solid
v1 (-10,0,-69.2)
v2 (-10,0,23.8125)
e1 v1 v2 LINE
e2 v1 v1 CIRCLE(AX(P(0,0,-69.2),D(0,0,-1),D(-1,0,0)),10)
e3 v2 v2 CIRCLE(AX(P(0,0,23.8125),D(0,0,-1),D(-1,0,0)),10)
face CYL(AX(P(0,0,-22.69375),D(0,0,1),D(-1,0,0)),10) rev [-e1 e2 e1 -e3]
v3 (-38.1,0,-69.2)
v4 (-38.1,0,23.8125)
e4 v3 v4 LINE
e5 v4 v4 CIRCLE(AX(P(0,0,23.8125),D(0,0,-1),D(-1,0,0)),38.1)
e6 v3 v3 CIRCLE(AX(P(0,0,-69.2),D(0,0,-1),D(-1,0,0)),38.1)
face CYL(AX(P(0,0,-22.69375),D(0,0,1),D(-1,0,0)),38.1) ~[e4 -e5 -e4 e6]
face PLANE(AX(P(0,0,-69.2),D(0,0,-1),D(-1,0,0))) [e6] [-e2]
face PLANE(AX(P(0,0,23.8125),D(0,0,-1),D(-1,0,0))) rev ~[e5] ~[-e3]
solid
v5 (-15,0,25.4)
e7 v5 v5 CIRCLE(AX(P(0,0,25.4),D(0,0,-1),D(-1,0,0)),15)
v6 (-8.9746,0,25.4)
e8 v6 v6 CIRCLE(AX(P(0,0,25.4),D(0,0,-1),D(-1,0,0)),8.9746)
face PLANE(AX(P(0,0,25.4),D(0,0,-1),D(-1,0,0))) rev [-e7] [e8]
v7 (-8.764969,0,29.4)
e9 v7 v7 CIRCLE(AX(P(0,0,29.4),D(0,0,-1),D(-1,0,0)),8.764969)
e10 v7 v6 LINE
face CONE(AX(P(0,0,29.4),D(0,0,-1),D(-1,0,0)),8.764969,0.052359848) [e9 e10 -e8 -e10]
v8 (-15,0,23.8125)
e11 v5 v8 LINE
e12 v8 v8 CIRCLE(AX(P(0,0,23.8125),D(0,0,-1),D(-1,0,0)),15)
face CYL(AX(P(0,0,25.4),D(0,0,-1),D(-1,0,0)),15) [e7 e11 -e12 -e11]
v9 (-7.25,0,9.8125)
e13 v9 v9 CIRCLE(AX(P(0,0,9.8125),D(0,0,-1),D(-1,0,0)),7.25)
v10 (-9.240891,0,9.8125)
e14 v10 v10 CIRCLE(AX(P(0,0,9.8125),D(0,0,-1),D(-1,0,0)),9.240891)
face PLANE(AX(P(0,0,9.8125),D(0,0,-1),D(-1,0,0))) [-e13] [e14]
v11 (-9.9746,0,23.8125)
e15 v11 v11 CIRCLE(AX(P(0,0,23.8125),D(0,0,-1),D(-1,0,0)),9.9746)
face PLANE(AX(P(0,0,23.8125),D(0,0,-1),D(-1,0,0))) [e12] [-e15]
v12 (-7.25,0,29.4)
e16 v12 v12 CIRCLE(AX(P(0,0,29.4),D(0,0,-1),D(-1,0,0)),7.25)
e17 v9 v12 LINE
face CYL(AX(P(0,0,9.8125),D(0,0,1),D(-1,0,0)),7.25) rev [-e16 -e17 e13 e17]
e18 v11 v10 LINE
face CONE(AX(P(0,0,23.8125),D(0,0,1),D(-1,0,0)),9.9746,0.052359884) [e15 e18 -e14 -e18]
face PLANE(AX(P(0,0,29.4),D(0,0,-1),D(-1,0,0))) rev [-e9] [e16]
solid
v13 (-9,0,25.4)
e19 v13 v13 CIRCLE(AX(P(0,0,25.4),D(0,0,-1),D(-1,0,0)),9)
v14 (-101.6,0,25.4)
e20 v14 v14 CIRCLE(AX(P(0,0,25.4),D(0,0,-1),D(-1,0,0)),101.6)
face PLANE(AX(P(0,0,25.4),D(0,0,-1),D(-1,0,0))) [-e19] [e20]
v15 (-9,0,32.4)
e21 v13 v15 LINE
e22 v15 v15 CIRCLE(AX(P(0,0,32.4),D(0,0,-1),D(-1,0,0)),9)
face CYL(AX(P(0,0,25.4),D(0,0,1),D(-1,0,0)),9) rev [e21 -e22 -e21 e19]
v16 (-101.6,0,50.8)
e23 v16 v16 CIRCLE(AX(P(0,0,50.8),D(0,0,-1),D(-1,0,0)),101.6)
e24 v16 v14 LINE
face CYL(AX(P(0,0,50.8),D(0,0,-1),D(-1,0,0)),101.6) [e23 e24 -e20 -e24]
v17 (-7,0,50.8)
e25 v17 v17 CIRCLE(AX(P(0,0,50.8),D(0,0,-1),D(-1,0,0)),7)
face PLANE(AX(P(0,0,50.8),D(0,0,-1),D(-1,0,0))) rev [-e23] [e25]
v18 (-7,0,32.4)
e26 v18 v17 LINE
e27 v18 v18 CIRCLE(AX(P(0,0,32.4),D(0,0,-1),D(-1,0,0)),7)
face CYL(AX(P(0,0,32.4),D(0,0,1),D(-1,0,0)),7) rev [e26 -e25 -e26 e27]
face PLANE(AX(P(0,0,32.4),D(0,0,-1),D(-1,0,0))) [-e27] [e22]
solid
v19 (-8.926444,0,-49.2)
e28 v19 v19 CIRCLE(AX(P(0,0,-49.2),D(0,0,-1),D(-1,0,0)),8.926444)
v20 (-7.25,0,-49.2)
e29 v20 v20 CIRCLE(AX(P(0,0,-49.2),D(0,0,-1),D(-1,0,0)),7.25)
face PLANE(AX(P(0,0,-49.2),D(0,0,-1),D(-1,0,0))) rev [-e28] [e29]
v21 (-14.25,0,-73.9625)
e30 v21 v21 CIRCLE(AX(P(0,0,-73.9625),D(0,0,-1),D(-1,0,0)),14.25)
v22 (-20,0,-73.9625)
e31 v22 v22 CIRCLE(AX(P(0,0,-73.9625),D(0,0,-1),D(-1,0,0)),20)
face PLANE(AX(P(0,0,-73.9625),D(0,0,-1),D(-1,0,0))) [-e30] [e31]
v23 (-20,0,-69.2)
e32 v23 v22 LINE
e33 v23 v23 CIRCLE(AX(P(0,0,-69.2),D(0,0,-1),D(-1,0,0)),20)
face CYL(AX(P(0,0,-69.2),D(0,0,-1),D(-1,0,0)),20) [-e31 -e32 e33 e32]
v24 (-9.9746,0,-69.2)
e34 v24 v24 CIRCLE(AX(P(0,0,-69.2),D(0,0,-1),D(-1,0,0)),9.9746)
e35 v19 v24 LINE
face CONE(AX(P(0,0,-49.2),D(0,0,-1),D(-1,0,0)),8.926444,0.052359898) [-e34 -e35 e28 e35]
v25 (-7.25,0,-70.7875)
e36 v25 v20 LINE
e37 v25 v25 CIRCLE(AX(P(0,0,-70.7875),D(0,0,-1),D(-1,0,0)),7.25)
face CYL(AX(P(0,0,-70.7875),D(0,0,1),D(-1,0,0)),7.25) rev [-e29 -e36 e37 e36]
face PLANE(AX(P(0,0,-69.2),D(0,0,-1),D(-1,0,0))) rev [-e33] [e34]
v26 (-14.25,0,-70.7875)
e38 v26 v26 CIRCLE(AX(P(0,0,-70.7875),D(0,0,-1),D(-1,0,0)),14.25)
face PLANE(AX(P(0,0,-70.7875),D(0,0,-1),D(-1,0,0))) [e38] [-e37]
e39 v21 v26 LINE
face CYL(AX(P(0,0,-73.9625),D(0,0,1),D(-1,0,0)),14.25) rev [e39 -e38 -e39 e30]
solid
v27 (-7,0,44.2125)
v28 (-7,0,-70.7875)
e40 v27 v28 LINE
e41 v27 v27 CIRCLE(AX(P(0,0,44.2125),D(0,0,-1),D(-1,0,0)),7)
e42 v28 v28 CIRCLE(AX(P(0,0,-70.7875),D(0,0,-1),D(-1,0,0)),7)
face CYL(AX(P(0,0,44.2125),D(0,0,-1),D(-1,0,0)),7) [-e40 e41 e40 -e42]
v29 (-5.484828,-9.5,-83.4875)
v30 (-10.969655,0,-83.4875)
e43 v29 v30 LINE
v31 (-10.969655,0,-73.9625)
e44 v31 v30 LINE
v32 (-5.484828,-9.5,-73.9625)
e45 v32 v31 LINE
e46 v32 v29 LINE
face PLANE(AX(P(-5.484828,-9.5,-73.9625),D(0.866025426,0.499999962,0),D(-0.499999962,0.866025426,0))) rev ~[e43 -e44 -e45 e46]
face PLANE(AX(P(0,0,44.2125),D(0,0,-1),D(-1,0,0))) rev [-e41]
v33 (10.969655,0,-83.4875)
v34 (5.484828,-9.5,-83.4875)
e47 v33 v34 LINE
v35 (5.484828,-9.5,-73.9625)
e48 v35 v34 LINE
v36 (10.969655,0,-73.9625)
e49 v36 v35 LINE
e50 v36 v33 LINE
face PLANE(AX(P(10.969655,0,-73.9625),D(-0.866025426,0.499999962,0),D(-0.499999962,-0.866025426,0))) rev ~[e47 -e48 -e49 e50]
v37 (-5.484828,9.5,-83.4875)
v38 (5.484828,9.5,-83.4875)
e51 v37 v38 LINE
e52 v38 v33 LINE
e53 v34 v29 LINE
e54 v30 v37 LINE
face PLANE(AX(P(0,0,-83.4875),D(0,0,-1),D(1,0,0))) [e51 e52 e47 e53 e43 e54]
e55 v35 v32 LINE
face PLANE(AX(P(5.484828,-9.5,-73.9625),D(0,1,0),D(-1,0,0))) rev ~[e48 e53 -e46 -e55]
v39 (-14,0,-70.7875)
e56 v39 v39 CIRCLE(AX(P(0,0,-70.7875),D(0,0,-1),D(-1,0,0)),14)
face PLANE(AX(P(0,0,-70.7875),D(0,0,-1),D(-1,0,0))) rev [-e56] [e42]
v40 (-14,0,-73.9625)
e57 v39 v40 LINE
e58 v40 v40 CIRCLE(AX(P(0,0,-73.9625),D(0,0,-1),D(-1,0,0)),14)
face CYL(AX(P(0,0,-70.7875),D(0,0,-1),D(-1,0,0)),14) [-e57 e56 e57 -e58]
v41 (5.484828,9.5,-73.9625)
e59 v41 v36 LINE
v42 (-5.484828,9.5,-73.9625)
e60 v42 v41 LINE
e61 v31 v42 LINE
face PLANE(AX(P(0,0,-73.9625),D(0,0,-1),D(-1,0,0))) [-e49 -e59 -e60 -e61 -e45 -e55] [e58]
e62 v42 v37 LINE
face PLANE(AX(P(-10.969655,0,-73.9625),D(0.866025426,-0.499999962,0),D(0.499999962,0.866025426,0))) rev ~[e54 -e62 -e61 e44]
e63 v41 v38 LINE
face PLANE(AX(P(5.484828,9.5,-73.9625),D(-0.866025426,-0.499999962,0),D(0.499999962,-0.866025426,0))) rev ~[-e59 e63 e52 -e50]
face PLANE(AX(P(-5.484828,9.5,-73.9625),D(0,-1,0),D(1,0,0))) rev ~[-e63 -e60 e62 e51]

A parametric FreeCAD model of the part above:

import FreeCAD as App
import Part
import Sketcher
Q = App.Units.Quantity

doc = App.newDocument("Part")
body = doc.addObject("PartDesign::Body", "Body")

# Sketch on XZ plane
sketch1 = body.newObject("Sketcher::SketchObject", "Sketch")
sketch1.AttachmentSupport = (doc.getObject("XZ_Plane"), [""])
sketch1.MapMode = "FlatFace"
sketch1.addGeometry([
    Part.LineSegment(App.Vector(-7, 50.8, 0), App.Vector(-101.6, 50.8, 0)),  # 0
    Part.LineSegment(App.Vector(-101.6, 50.8, 0), App.Vector(-101.6, 25.4, 0)),  # 1
    Part.LineSegment(App.Vector(-101.6, 25.4, 0), App.Vector(-9, 25.4, 0)),  # 2
    Part.LineSegment(App.Vector(-9, 25.4, 0), App.Vector(-9, 32.4, 0)),  # 3
    Part.LineSegment(App.Vector(-9, 32.4, 0), App.Vector(-7, 32.4, 0)),  # 4
    Part.LineSegment(App.Vector(-7, 32.4, 0), App.Vector(-7, 50.8, 0)),  # 5
], False)
sketch1.addConstraint([
    Sketcher.Constraint("Coincident", 0, 2, 1, 1),
    Sketcher.Constraint("Coincident", 1, 2, 2, 1),
    Sketcher.Constraint("Coincident", 2, 2, 3, 1),
    Sketcher.Constraint("Coincident", 3, 2, 4, 1),
    Sketcher.Constraint("Coincident", 4, 2, 5, 1),
    Sketcher.Constraint("Coincident", 5, 2, 0, 1),
    Sketcher.Constraint("Horizontal", 0),
    Sketcher.Constraint("Vertical", 1),
    Sketcher.Constraint("Horizontal", 2),
    Sketcher.Constraint("Vertical", 3),
    Sketcher.Constraint("Horizontal", 4),
    Sketcher.Constraint("Vertical", 5),
    Sketcher.Constraint("DistanceX", 4, 1, 4, 2, 2.0),
    Sketcher.Constraint("DistanceY", 3, 1, 3, 2, 7.0),
    Sketcher.Constraint("DistanceX", 0, 2, 0, 1, 94.6),
    Sketcher.Constraint("DistanceY", 1, 2, 1, 1, 25.4),
    Sketcher.Constraint("DistanceX", 2, 2, -1, 1, 9.0),
    Sketcher.Constraint("DistanceY", -1, 1, 0, 2, 50.8),
])
revolution = body.newObject("PartDesign::Revolution", "Revolution")
revolution.Profile = sketch1
revolution.ReferenceAxis = (sketch1, ["V_Axis"])
revolution.Angle = 360
body2 = doc.addObject("PartDesign::Body", "Body001")

# Sketch on XZ plane
sketch2 = body2.newObject("Sketcher::SketchObject", "Sketch001")
sketch2.AttachmentSupport = (doc.getObject("XZ_Plane001"), [""])
sketch2.MapMode = "FlatFace"
sketch2.addGeometry([
    Part.LineSegment(App.Vector(-38, 24, 0), App.Vector(-38, -69, 0)),
    Part.LineSegment(App.Vector(-38, -69, 0), App.Vector(-10, -69, 0)),
    Part.LineSegment(App.Vector(-10, -69, 0), App.Vector(-10, 24, 0)),
    Part.LineSegment(App.Vector(-10, 24, 0), App.Vector(-38, 24, 0)),
], False)
sketch2.addConstraint([
    Sketcher.Constraint("Coincident", 0, 2, 1, 1),
    Sketcher.Constraint("Coincident", 1, 2, 2, 1),
    Sketcher.Constraint("Coincident", 2, 2, 3, 1),
    Sketcher.Constraint("Coincident", 3, 2, 0, 1),
    Sketcher.Constraint("Vertical", 0),
    Sketcher.Constraint("Horizontal", 1),
    Sketcher.Constraint("Vertical", 2),
    Sketcher.Constraint("Horizontal", 3),
    Sketcher.Constraint("DistanceX", 1, 1, 1, 2, 28.1),
    Sketcher.Constraint("DistanceX", 1, 2, -1, 1, 10.0),
    Sketcher.Constraint("DistanceY", 0, 2, -1, 1, 69.2),
    Sketcher.Constraint("DistanceY", 0, 2, 0, 1, 93.0125),
])
revolution2 = body2.newObject("PartDesign::Revolution", "Revolution001")
revolution2.Profile = sketch2
revolution2.ReferenceAxis = (sketch2, ["V_Axis"])
revolution2.Angle = 360
body3 = doc.addObject("PartDesign::Body", "Body002")

# Sketch on XZ plane
sketch3 = body3.newObject("Sketcher::SketchObject", "Sketch002")
sketch3.AttachmentSupport = (doc.getObject("XZ_Plane002"), [""])
sketch3.MapMode = "FlatFace"
sketch3.addGeometry([
    Part.LineSegment(App.Vector(0, -74, 0), App.Vector(0, 44.2, 0)),  # 0
    Part.LineSegment(App.Vector(0, 44.2, 0), App.Vector(-7, 44.2, 0)),  # 1
    Part.LineSegment(App.Vector(-7, 44.2, 0), App.Vector(-7, -70.8, 0)),  # 2
    Part.LineSegment(App.Vector(-7, -70.8, 0), App.Vector(-14, -70.8, 0)),  # 3
    Part.LineSegment(App.Vector(-14, -70.8, 0), App.Vector(-14, -74, 0)),  # 4
    Part.LineSegment(App.Vector(-14, -74, 0), App.Vector(0, -74, 0)),  # 5
], False)
sketch3.addConstraint([
    Sketcher.Constraint("Coincident", 0, 2, 1, 1),
    Sketcher.Constraint("Coincident", 1, 2, 2, 1),
    Sketcher.Constraint("Coincident", 2, 2, 3, 1),
    Sketcher.Constraint("Coincident", 3, 2, 4, 1),
    Sketcher.Constraint("Coincident", 4, 2, 5, 1),
    Sketcher.Constraint("Coincident", 5, 2, 0, 1),
    Sketcher.Constraint("Vertical", 0),
    Sketcher.Constraint("Horizontal", 1),
    Sketcher.Constraint("Vertical", 2),
    Sketcher.Constraint("Horizontal", 3),
    Sketcher.Constraint("Vertical", 4),
    Sketcher.Constraint("Horizontal", 5),
    Sketcher.Constraint("PointOnObject", 0, 2, -2),
    Sketcher.Constraint("Equal", 1, 3),
    Sketcher.Constraint("DistanceX", 1, 2, 1, 1, 7.0),
    Sketcher.Constraint("DistanceY", 2, 2, 2, 1, 115.0),
    Sketcher.Constraint("DistanceY", 0, 1, 0, 2, 118.175),
    Sketcher.Constraint("DistanceY", -1, 1, 0, 2, 44.2125),
])
revolution3 = body3.newObject("PartDesign::Revolution", "Revolution002")
revolution3.Profile = sketch3
revolution3.ReferenceAxis = (sketch3, ["V_Axis"])
revolution3.Angle = 360

# Sketch on XY plane
sketch4 = body3.newObject("Sketcher::SketchObject", "Sketch003")
sketch4.AttachmentSupport = (doc.getObject("XY_Plane002"), [""])
sketch4.MapMode = "FlatFace"
sketch4.AttachmentOffset = App.Placement(App.Vector(0, 0, -73.9625), App.Rotation())
sketch4.addGeometry([
    Part.LineSegment(App.Vector(5, -10, 0), App.Vector(-5, -10, 0)),  # 0
    Part.LineSegment(App.Vector(-5, -10, 0), App.Vector(-11, 0, 0)),  # 1
    Part.LineSegment(App.Vector(-11, 0, 0), App.Vector(-5, 10, 0)),  # 2
    Part.LineSegment(App.Vector(-5, 10, 0), App.Vector(5, 10, 0)),  # 3
    Part.LineSegment(App.Vector(5, 10, 0), App.Vector(11, 0, 0)),  # 4
    Part.LineSegment(App.Vector(11, 0, 0), App.Vector(5, -10, 0)),  # 5
], False)
sketch4.addConstraint([
    Sketcher.Constraint("Coincident", 0, 2, 1, 1),
    Sketcher.Constraint("Coincident", 1, 2, 2, 1),
    Sketcher.Constraint("Coincident", 2, 2, 3, 1),
    Sketcher.Constraint("Coincident", 3, 2, 4, 1),
    Sketcher.Constraint("Coincident", 4, 2, 5, 1),
    Sketcher.Constraint("Coincident", 5, 2, 0, 1),
    Sketcher.Constraint("Horizontal", 0),
    Sketcher.Constraint("Horizontal", 3),
    Sketcher.Constraint("Symmetric", 0, 2, 3, 2, -1, 1),
    Sketcher.Constraint("Symmetric", 1, 2, 4, 2, -1, 1),
    Sketcher.Constraint("PointOnObject", 1, 2, -1),
    Sketcher.Constraint("Parallel", 2, 5),
    Sketcher.Constraint("Vertical", 0, 2, 2, 2),
    Sketcher.Constraint("Angle", 1, Q("119.999997 deg")),
    Sketcher.Constraint("DistanceY", 0, 2, 2, 2, 19.0),
    Sketcher.Constraint("DistanceX", 0, 2, 0, 1, 10.969656),
])
pad1 = body3.newObject("PartDesign::Pad", "Pad")
pad1.Profile = sketch4
pad1.Length = 9.525
pad1.Reversed = True
body4 = doc.addObject("PartDesign::Body", "Body003")

# Sketch on XZ plane
sketch5 = body4.newObject("Sketcher::SketchObject", "Sketch004")
sketch5.AttachmentSupport = (doc.getObject("XZ_Plane003"), [""])
sketch5.MapMode = "FlatFace"
sketch5.addGeometry([
    Part.LineSegment(App.Vector(-7.2, 9.8, 0), App.Vector(-7.2, 29.4, 0)),  # 0
    Part.LineSegment(App.Vector(-7.2, 29.4, 0), App.Vector(-8.8, 29.4, 0)),  # 1
    Part.LineSegment(App.Vector(-8.8, 29.4, 0), App.Vector(-9, 25.4, 0)),  # 2
    Part.LineSegment(App.Vector(-9, 25.4, 0), App.Vector(-15, 25.4, 0)),  # 3
    Part.LineSegment(App.Vector(-15, 25.4, 0), App.Vector(-15, 23.8, 0)),  # 4
    Part.LineSegment(App.Vector(-15, 23.8, 0), App.Vector(-10, 23.8, 0)),  # 5
    Part.LineSegment(App.Vector(-10, 23.8, 0), App.Vector(-9.2, 9.8, 0)),  # 6
    Part.LineSegment(App.Vector(-9.2, 9.8, 0), App.Vector(-7.2, 9.8, 0)),  # 7
], False)
sketch5.addConstraint([
    Sketcher.Constraint("Coincident", 0, 2, 1, 1),
    Sketcher.Constraint("Coincident", 1, 2, 2, 1),
    Sketcher.Constraint("Coincident", 2, 2, 3, 1),
    Sketcher.Constraint("Coincident", 3, 2, 4, 1),
    Sketcher.Constraint("Coincident", 4, 2, 5, 1),
    Sketcher.Constraint("Coincident", 5, 2, 6, 1),
    Sketcher.Constraint("Coincident", 6, 2, 7, 1),
    Sketcher.Constraint("Coincident", 7, 2, 0, 1),
    Sketcher.Constraint("Vertical", 0),
    Sketcher.Constraint("Horizontal", 1),
    Sketcher.Constraint("Horizontal", 3),
    Sketcher.Constraint("Vertical", 4),
    Sketcher.Constraint("Horizontal", 5),
    Sketcher.Constraint("Horizontal", 7),
    Sketcher.Constraint("Angle", 2, Q("-92.999998 deg")),
    Sketcher.Constraint("Angle", 6, Q("-87 deg")),
    Sketcher.Constraint("DistanceX", 3, 2, -1, 1, 15.0),
    Sketcher.Constraint("DistanceY", 2, 2, 1, 2, 4.0),
    Sketcher.Constraint("DistanceX", 5, 2, 2, 2, 1.0),
    Sketcher.Constraint("DistanceY", 6, 2, 5, 2, 14.0),
    Sketcher.Constraint("DistanceY", -1, 1, 0, 2, 29.4),
    Sketcher.Constraint("DistanceX", 0, 2, -1, 1, 7.25),
    Sketcher.Constraint("DistanceX", 3, 2, 3, 1, 6.0254),
    Sketcher.Constraint("DistanceY", 0, 1, 0, 2, 19.5875),
])
revolution4 = body4.newObject("PartDesign::Revolution", "Revolution003")
revolution4.Profile = sketch5
revolution4.ReferenceAxis = (sketch5, ["V_Axis"])
revolution4.Angle = 360
body5 = doc.addObject("PartDesign::Body", "Body004")

# Sketch on XZ plane
sketch6 = body5.newObject("Sketcher::SketchObject", "Sketch005")
sketch6.AttachmentSupport = (doc.getObject("XZ_Plane004"), [""])
sketch6.MapMode = "FlatFace"
sketch6.addGeometry([
    Part.LineSegment(App.Vector(-8.9, -49.2, 0), App.Vector(-10, -69.2, 0)),  # 0
    Part.LineSegment(App.Vector(-10, -69.2, 0), App.Vector(-20, -69.2, 0)),  # 1
    Part.LineSegment(App.Vector(-20, -69.2, 0), App.Vector(-20, -74, 0)),  # 2
    Part.LineSegment(App.Vector(-20, -74, 0), App.Vector(-14.2, -74, 0)),  # 3
    Part.LineSegment(App.Vector(-14.2, -74, 0), App.Vector(-14.2, -70.8, 0)),  # 4
    Part.LineSegment(App.Vector(-14.2, -70.8, 0), App.Vector(-7.2, -70.8, 0)),  # 5
    Part.LineSegment(App.Vector(-7.2, -70.8, 0), App.Vector(-7.2, -49.2, 0)),  # 6
    Part.LineSegment(App.Vector(-7.2, -49.2, 0), App.Vector(-8.9, -49.2, 0)),  # 7
], False)
sketch6.addConstraint([
    Sketcher.Constraint("Coincident", 0, 2, 1, 1),
    Sketcher.Constraint("Coincident", 1, 2, 2, 1),
    Sketcher.Constraint("Coincident", 2, 2, 3, 1),
    Sketcher.Constraint("Coincident", 3, 2, 4, 1),
    Sketcher.Constraint("Coincident", 4, 2, 5, 1),
    Sketcher.Constraint("Coincident", 5, 2, 6, 1),
    Sketcher.Constraint("Coincident", 6, 2, 7, 1),
    Sketcher.Constraint("Coincident", 7, 2, 0, 1),
    Sketcher.Constraint("Horizontal", 1),
    Sketcher.Constraint("Vertical", 2),
    Sketcher.Constraint("Horizontal", 3),
    Sketcher.Constraint("Vertical", 4),
    Sketcher.Constraint("Horizontal", 5),
    Sketcher.Constraint("Vertical", 6),
    Sketcher.Constraint("Horizontal", 7),
    Sketcher.Constraint("DistanceX", 5, 1, 5, 2, 7.0),
    Sketcher.Constraint("Angle", 0, Q("-93.000001 deg")),
    Sketcher.Constraint("DistanceX", 1, 2, -1, 1, 20.0),
    Sketcher.Constraint("DistanceY", 0, 2, 6, 2, 20.0),
    Sketcher.Constraint("DistanceX", 3, 1, 3, 2, 5.75),
    Sketcher.Constraint("DistanceY", 0, 2, -1, 1, 69.2),
    Sketcher.Constraint("DistanceY", 4, 1, 4, 2, 3.175),
    Sketcher.Constraint("DistanceX", 1, 2, 1, 1, 10.0254),
    Sketcher.Constraint("DistanceY", 2, 2, 2, 1, 4.7625),
])
revolution5 = body5.newObject("PartDesign::Revolution", "Revolution004")
revolution5.Profile = sketch6
revolution5.ReferenceAxis = (sketch6, ["V_Axis"])
revolution5.Angle = 360

doc.recompute()
